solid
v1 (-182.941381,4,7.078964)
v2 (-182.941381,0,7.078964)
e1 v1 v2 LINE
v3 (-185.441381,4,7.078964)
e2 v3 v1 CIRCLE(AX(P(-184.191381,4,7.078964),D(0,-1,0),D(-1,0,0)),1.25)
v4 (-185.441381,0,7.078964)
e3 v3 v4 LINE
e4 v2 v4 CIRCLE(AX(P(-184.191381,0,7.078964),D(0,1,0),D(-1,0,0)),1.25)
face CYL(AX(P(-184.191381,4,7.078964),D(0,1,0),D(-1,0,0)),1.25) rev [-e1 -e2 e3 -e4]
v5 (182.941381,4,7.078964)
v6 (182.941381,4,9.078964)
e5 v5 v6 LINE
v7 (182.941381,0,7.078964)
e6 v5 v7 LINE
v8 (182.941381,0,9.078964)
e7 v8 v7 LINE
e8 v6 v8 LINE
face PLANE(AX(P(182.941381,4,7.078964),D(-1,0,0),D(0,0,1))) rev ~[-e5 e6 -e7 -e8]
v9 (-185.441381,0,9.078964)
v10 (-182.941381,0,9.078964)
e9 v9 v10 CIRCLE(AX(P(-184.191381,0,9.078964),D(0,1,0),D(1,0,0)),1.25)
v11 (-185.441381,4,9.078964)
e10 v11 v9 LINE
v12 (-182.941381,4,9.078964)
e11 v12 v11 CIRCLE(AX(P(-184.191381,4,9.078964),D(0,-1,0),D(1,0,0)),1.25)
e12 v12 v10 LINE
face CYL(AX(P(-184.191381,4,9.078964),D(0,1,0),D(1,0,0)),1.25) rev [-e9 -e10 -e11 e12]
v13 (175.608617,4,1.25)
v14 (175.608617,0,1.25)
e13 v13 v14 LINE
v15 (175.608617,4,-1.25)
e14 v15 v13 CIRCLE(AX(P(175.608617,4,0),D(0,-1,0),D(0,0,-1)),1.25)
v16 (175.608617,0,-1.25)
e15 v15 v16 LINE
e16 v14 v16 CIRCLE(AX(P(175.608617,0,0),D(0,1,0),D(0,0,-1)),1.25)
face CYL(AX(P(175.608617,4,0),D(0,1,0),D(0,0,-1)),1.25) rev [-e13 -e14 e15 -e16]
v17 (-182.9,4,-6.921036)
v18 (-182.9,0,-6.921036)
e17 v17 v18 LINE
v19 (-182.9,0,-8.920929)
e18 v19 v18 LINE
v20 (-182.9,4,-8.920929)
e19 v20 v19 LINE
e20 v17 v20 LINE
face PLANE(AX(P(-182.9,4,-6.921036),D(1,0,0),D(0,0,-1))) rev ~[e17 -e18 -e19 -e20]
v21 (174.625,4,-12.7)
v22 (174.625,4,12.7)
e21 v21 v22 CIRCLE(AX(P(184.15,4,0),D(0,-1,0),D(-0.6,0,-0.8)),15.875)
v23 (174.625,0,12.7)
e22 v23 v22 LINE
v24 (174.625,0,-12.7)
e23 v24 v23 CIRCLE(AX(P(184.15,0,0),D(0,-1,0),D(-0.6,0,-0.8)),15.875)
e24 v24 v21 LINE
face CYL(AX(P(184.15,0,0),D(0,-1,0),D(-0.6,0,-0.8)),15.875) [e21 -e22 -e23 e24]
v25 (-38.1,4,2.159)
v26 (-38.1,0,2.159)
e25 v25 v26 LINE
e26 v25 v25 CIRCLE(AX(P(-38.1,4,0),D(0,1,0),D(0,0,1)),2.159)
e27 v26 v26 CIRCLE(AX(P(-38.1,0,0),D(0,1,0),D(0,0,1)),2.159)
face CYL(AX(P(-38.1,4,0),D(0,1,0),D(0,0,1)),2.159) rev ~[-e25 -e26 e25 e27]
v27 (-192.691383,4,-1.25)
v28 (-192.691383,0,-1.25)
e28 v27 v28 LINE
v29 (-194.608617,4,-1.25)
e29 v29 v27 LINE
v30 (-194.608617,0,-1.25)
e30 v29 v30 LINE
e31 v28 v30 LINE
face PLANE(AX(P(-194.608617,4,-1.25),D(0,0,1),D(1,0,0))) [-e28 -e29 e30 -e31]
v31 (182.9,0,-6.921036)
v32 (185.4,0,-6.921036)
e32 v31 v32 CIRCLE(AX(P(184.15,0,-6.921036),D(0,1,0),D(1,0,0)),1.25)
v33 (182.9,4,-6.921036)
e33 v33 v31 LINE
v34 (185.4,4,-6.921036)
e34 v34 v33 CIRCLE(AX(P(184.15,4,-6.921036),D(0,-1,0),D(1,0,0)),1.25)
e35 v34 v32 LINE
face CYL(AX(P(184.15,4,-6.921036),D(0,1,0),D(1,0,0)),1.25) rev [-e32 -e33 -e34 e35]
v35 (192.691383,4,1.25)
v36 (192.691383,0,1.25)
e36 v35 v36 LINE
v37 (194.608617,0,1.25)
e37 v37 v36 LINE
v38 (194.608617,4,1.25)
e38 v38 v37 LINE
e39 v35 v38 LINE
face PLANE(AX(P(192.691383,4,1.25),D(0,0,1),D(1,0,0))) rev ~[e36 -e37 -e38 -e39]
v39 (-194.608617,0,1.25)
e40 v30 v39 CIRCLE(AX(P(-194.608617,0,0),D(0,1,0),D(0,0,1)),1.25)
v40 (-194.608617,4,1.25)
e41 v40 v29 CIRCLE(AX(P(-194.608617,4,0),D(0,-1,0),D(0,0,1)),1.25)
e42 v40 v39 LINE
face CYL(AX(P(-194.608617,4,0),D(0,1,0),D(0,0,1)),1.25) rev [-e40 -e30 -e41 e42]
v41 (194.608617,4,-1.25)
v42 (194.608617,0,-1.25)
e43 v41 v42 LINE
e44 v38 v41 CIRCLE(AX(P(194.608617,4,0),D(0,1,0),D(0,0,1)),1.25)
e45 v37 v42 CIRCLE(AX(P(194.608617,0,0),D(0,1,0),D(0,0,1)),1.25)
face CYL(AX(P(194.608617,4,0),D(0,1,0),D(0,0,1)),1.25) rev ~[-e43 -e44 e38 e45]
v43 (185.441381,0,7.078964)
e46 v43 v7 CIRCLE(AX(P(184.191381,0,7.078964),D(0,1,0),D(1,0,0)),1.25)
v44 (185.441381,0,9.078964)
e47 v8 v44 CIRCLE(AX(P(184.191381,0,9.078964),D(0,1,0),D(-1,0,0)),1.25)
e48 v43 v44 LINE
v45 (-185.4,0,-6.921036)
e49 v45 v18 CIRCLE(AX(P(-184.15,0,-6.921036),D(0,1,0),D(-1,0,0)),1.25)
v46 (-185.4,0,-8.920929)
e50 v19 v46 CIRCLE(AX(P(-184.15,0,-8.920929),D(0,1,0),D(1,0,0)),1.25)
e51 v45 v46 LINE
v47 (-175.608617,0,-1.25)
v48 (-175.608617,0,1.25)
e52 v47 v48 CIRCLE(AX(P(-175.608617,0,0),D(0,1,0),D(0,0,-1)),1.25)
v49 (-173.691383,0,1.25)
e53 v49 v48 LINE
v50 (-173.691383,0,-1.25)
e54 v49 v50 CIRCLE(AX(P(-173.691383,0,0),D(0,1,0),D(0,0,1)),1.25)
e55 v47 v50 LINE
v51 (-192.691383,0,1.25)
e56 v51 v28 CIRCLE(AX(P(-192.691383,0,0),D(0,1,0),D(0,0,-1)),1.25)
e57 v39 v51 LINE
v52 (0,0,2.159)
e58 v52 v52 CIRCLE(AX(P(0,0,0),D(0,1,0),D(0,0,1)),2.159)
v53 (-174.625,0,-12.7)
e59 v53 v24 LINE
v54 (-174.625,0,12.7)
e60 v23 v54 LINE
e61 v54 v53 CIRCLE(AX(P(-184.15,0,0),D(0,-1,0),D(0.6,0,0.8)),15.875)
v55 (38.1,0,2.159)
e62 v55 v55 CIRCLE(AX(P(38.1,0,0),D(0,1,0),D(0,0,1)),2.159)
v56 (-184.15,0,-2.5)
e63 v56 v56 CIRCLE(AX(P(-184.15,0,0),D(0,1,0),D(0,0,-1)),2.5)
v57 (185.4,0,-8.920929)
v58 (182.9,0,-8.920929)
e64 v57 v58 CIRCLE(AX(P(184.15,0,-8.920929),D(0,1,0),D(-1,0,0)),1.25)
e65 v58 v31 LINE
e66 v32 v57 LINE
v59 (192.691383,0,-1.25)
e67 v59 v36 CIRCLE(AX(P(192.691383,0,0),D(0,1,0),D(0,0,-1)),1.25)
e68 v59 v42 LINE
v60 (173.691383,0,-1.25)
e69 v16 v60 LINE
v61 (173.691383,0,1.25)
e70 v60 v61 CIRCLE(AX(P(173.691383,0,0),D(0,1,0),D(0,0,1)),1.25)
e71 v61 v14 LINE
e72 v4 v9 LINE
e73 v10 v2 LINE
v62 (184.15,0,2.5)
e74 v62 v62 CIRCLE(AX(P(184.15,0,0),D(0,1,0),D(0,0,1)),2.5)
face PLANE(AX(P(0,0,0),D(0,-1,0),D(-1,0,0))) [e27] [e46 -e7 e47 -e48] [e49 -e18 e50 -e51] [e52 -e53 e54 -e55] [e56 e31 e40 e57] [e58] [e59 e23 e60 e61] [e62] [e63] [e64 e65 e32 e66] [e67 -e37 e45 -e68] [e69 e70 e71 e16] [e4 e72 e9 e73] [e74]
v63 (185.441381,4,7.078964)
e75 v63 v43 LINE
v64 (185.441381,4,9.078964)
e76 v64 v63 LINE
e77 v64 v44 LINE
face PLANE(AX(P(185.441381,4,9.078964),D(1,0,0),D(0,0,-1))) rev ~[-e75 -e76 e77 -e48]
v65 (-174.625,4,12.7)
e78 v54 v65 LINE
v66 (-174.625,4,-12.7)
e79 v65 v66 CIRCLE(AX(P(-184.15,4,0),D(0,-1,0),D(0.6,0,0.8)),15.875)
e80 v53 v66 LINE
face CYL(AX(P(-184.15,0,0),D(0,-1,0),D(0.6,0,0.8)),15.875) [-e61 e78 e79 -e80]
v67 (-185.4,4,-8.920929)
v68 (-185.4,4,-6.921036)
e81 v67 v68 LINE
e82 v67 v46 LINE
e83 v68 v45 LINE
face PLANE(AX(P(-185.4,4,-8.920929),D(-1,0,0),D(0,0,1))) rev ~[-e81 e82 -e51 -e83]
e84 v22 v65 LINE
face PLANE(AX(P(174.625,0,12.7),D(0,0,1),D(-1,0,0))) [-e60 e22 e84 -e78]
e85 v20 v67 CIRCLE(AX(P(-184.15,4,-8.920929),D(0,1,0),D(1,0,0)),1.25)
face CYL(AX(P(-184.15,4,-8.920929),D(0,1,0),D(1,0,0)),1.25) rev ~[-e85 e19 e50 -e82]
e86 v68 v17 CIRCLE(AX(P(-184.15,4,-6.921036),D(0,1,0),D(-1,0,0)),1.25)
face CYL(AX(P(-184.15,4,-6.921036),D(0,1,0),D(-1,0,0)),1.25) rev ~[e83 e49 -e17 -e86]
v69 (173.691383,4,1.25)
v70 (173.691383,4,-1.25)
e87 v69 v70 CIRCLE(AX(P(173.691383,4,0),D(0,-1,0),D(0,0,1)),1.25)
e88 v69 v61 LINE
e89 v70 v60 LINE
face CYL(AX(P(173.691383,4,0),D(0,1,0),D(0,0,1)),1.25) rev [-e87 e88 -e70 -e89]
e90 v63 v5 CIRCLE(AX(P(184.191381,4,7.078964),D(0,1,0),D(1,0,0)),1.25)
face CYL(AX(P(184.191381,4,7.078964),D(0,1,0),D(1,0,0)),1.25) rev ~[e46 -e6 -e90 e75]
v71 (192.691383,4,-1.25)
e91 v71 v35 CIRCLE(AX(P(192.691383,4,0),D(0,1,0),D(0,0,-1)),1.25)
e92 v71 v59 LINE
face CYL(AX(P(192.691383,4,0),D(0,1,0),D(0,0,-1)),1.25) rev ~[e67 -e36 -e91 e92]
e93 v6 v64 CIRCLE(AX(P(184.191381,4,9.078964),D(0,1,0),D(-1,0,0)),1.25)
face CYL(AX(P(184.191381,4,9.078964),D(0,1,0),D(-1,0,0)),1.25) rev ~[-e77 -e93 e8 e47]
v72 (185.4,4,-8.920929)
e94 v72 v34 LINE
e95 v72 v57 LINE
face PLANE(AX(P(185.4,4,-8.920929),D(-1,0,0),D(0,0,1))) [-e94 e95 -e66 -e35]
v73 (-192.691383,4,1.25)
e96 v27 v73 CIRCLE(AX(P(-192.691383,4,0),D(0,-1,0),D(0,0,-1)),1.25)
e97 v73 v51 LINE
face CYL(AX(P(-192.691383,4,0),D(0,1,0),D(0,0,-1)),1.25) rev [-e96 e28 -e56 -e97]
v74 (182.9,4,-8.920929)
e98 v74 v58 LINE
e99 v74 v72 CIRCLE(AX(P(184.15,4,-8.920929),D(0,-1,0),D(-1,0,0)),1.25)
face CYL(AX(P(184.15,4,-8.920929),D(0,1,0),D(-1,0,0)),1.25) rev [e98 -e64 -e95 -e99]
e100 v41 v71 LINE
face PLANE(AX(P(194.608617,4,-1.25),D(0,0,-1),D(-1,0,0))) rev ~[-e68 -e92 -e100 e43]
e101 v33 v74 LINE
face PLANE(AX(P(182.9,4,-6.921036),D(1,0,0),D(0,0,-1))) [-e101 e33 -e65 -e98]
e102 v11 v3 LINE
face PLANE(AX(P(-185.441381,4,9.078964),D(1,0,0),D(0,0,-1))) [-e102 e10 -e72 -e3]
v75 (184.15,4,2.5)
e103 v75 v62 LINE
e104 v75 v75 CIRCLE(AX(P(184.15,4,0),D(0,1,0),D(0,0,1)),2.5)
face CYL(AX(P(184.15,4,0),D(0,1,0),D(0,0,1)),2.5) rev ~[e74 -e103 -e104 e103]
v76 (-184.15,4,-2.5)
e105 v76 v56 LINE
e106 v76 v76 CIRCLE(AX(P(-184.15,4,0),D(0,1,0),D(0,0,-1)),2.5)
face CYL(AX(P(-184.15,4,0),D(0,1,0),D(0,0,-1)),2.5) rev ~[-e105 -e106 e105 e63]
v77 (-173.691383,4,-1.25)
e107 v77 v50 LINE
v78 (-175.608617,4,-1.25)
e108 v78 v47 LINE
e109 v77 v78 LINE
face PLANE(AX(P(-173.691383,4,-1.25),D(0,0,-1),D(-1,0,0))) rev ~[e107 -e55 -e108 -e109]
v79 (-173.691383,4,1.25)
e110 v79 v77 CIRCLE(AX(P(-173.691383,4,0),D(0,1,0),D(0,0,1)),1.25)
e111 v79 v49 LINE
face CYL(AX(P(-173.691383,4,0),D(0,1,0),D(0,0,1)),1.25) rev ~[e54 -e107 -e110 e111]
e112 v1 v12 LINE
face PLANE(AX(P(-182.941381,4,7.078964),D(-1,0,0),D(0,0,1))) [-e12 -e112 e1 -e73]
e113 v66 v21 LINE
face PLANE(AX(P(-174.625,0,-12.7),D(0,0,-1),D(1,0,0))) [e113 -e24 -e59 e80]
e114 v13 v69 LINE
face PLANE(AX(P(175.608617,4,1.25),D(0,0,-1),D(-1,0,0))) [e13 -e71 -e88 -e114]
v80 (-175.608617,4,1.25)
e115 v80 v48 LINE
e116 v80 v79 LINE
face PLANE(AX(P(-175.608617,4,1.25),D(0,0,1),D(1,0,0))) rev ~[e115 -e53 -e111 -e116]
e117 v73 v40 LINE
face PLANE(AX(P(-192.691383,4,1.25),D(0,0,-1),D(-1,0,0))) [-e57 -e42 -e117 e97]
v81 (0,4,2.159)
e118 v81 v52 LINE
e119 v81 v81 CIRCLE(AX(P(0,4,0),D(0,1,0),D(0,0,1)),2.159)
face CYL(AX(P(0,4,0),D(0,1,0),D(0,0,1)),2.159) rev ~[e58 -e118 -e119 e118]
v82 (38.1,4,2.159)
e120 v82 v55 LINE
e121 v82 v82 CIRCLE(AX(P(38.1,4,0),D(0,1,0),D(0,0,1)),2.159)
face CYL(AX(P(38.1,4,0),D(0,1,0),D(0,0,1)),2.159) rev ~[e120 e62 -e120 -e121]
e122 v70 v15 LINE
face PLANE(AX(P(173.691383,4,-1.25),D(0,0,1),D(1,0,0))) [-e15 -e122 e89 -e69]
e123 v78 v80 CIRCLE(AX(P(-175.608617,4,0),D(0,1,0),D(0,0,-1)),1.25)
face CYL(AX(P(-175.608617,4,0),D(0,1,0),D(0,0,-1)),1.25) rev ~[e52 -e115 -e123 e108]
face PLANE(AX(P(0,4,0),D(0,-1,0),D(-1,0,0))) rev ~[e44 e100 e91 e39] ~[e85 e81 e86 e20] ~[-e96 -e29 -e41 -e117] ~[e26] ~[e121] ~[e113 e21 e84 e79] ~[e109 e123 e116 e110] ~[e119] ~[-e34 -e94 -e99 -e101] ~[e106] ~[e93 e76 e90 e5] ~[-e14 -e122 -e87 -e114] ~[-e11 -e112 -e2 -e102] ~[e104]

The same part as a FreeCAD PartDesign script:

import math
import FreeCAD as App
import Part
import Sketcher
from FreeCAD import Vector

doc = App.newDocument("Part")
body = doc.addObject("PartDesign::Body", "Body")

# Sketch on XZ plane
sketch1 = doc.addObject("Sketcher::SketchObject", "Sketch")
body.addObject(sketch1)
sketch1.AttachmentSupport = (doc.XZ_Plane, [""])
sketch1.MapMode = "FlatFace"
sketch1.addGeometry([
    Part.LineSegment(Vector(175, -13, 0), Vector(-175, -13, 0)),
    Part.ArcOfCircle(Part.Circle(Vector(-184, 0, 0), Vector(0, 0, 1), 16), math.radians(53), math.radians(307)),
    Part.LineSegment(Vector(-175, 13, 0), Vector(175, 13, 0)),
    Part.ArcOfCircle(Part.Circle(Vector(184, 0, 0), Vector(0, 0, 1), 16), math.radians(-127), math.radians(127)),
], False)
sketch1.addConstraint([
    Sketcher.Constraint("Coincident", 0, 2, 1, 2),
    Sketcher.Constraint("Coincident", 1, 1, 2, 1),
    Sketcher.Constraint("Coincident", 2, 2, 3, 2),
    Sketcher.Constraint("Coincident", 3, 1, 0, 1),
    Sketcher.Constraint("Horizontal", 0),
    Sketcher.Constraint("Horizontal", 2),
    Sketcher.Constraint("Equal", 1, 3),
    Sketcher.Constraint("Symmetric", 1, 3, 3, 3, -1, 1),
    Sketcher.Constraint("Symmetric", 0, 2, 1, 1, -1),
    Sketcher.Constraint("Radius", 1, 15.875),
    Sketcher.Constraint("DistanceX", 0, 2, 0, 1, 349.25),
    Sketcher.Constraint("DistanceY", 0, 2, -1, 1, 12.7),
])
pad1 = doc.addObject("PartDesign::Pad", "Pad")
body.addObject(pad1)
pad1.Profile = sketch1
pad1.Length = 4
pad1.Reversed = True

# Sketch on XZ plane
sketch2 = doc.addObject("Sketcher::SketchObject", "Sketch001")
body.addObject(sketch2)
sketch2.AttachmentSupport = (doc.XZ_Plane, [""])
sketch2.MapMode = "FlatFace"
sketch2.AttachmentOffset = App.Placement(Vector(0, 0, -4), App.Rotation())
sketch2.addGeometry([
    Part.Circle(Vector(184.2, 0, 0), Vector(0, 0, 1), 2.5),  # 0
    Part.Circle(Vector(-184.2, 0, 0), Vector(0, 0, 1), 2.5),  # 1
    Part.LineSegment(Vector(175.6, -1.2, 0), Vector(173.7, -1.2, 0)),  # 2
    Part.ArcOfCircle(Part.Circle(Vector(173.7, 0, 0), Vector(0, 0, 1), 1.2), math.radians(90), math.radians(270)),  # 3
    Part.LineSegment(Vector(173.7, 1.2, 0), Vector(175.6, 1.2, 0)),  # 4
    Part.ArcOfCircle(Part.Circle(Vector(175.6, 0, 0), Vector(0, 0, 1), 1.2), math.radians(-90), math.radians(90)),  # 5
    Part.LineSegment(Vector(194.6, -1.2, 0), Vector(192.7, -1.2, 0)),  # 6
    Part.ArcOfCircle(Part.Circle(Vector(192.7, 0, 0), Vector(0, 0, 1), 1.2), math.radians(90), math.radians(270)),  # 7
    Part.LineSegment(Vector(192.7, 1.2, 0), Vector(194.6, 1.2, 0)),  # 8
    Part.ArcOfCircle(Part.Circle(Vector(194.6, 0, 0), Vector(0, 0, 1), 1.2), math.radians(-90), math.radians(90)),  # 9
    Part.LineSegment(Vector(185.4, -6.9, 0), Vector(185.4, -8.9, 0)),  # 10
    Part.ArcOfCircle(Part.Circle(Vector(184.2, -8.9, 0), Vector(0, 0, 1), 1.2), math.radians(180), math.radians(360)),  # 11
    Part.LineSegment(Vector(182.9, -8.9, 0), Vector(182.9, -6.9, 0)),  # 12
    Part.ArcOfCircle(Part.Circle(Vector(184.2, -6.9, 0), Vector(0, 0, 1), 1.2), math.radians(0), math.radians(180)),  # 13
    Part.LineSegment(Vector(185.4, 9.1, 0), Vector(185.4, 7.1, 0)),  # 14
    Part.ArcOfCircle(Part.Circle(Vector(184.2, 7.1, 0), Vector(0, 0, 1), 1.2), math.radians(180), math.radians(360)),  # 15
    Part.LineSegment(Vector(182.9, 7.1, 0), Vector(182.9, 9.1, 0)),  # 16
    Part.ArcOfCircle(Part.Circle(Vector(184.2, 9.1, 0), Vector(0, 0, 1), 1.2), math.radians(0), math.radians(180)),  # 17
    Part.LineSegment(Vector(-185.4, 7.1, 0), Vector(-185.4, 9.1, 0)),  # 18
    Part.ArcOfCircle(Part.Circle(Vector(-184.2, 9.1, 0), Vector(0, 0, 1), 1.2), math.radians(0), math.radians(180)),  # 19
    Part.LineSegment(Vector(-182.9, 9.1, 0), Vector(-182.9, 7.1, 0)),  # 20
    Part.ArcOfCircle(Part.Circle(Vector(-184.2, 7.1, 0), Vector(0, 0, 1), 1.2), math.radians(180), math.radians(360)),  # 21
    Part.LineSegment(Vector(-185.4, -8.9, 0), Vector(-185.4, -6.9, 0)),  # 22
    Part.ArcOfCircle(Part.Circle(Vector(-184.2, -6.9, 0), Vector(0, 0, 1), 1.2), math.radians(0), math.radians(180)),  # 23
    Part.LineSegment(Vector(-182.9, -6.9, 0), Vector(-182.9, -8.9, 0)),  # 24
    Part.ArcOfCircle(Part.Circle(Vector(-184.2, -8.9, 0), Vector(0, 0, 1), 1.2), math.radians(180), math.radians(360)),  # 25
    Part.LineSegment(Vector(-192.7, -1.2, 0), Vector(-194.6, -1.2, 0)),  # 26
    Part.ArcOfCircle(Part.Circle(Vector(-194.6, 0, 0), Vector(0, 0, 1), 1.2), math.radians(90), math.radians(270)),  # 27
    Part.LineSegment(Vector(-194.6, 1.2, 0), Vector(-192.7, 1.2, 0)),  # 28
    Part.ArcOfCircle(Part.Circle(Vector(-192.7, 0, 0), Vector(0, 0, 1), 1.2), math.radians(-90), math.radians(90)),  # 29
    Part.LineSegment(Vector(-173.7, -1.2, 0), Vector(-175.6, -1.2, 0)),  # 30
    Part.ArcOfCircle(Part.Circle(Vector(-175.6, 0, 0), Vector(0, 0, 1), 1.2), math.radians(90), math.radians(270)),  # 31
    Part.LineSegment(Vector(-175.6, 1.2, 0), Vector(-173.7, 1.2, 0)),  # 32
    Part.ArcOfCircle(Part.Circle(Vector(-173.7, 0, 0), Vector(0, 0, 1), 1.2), math.radians(-90), math.radians(90)),  # 33
], False)
sketch2.addConstraint([
    Sketcher.Constraint("Tangent", 2, 2, 3, 2),
    Sketcher.Constraint("Tangent", 3, 1, 4, 1),
    Sketcher.Constraint("Tangent", 4, 2, 5, 2),
    Sketcher.Constraint("Tangent", 5, 1, 2, 1),
    Sketcher.Constraint("Tangent", 6, 2, 7, 2),
    Sketcher.Constraint("Tangent", 7, 1, 8, 1),
    Sketcher.Constraint("Tangent", 8, 2, 9, 2),
    Sketcher.Constraint("Tangent", 9, 1, 6, 1),
    Sketcher.Constraint("Tangent", 10, 2, 11, 2),
    Sketcher.Constraint("Tangent", 11, 1, 12, 1),
    Sketcher.Constraint("Tangent", 12, 2, 13, 2),
    Sketcher.Constraint("Tangent", 13, 1, 10, 1),
    Sketcher.Constraint("Tangent", 14, 2, 15, 2),
    Sketcher.Constraint("Tangent", 15, 1, 16, 1),
    Sketcher.Constraint("Tangent", 16, 2, 17, 2),
    Sketcher.Constraint("Tangent", 17, 1, 14, 1),
    Sketcher.Constraint("Tangent", 18, 2, 19, 2),
    Sketcher.Constraint("Tangent", 19, 1, 20, 1),
    Sketcher.Constraint("Tangent", 20, 2, 21, 2),
    Sketcher.Constraint("Tangent", 21, 1, 18, 1),
    Sketcher.Constraint("Tangent", 22, 2, 23, 2),
    Sketcher.Constraint("Tangent", 23, 1, 24, 1),
    Sketcher.Constraint("Tangent", 24, 2, 25, 2),
    Sketcher.Constraint("Tangent", 25, 1, 22, 1),
    Sketcher.Constraint("Tangent", 26, 2, 27, 2),
    Sketcher.Constraint("Tangent", 27, 1, 28, 1),
    Sketcher.Constraint("Tangent", 28, 2, 29, 2),
    Sketcher.Constraint("Tangent", 29, 1, 26, 1),
    Sketcher.Constraint("Tangent", 30, 2, 31, 2),
    Sketcher.Constraint("Tangent", 31, 1, 32, 1),
    Sketcher.Constraint("Tangent", 32, 2, 33, 2),
    Sketcher.Constraint("Tangent", 33, 1, 30, 1),
    Sketcher.Constraint("Horizontal", 2),
    Sketcher.Constraint("Horizontal", 4),
    Sketcher.Constraint("Horizontal", 6),
    Sketcher.Constraint("Horizontal", 8),
    Sketcher.Constraint("Vertical", 10),
    Sketcher.Constraint("Vertical", 12),
    Sketcher.Constraint("Vertical", 14),
    Sketcher.Constraint("Vertical", 16),
    Sketcher.Constraint("Vertical", 18),
    Sketcher.Constraint("Vertical", 20),
    Sketcher.Constraint("Vertical", 22),
    Sketcher.Constraint("Vertical", 24),
    Sketcher.Constraint("Horizontal", 26),
    Sketcher.Constraint("Horizontal", 28),
    Sketcher.Constraint("Horizontal", 30),
    Sketcher.Constraint("Horizontal", 32),
    Sketcher.Constraint("Equal", 0, 1),
    Sketcher.Constraint("Equal", 5, 7),
    Sketcher.Constraint("Equal", 9, 11),
    Sketcher.Constraint("Equal", 13, 15),
    Sketcher.Constraint("Equal", 17, 19),
    Sketcher.Constraint("Equal", 21, 23),
    Sketcher.Constraint("Equal", 25, 27),
    Sketcher.Constraint("Equal", 29, 31),
    Sketcher.Constraint("Symmetric", 0, 3, 1, 3, -1, 1),
    Sketcher.Constraint("Symmetric", 9, 3, 27, 3, -1, 1),
    Sketcher.Constraint("Symmetric", 5, 3, 31, 3, -1, 1),
    Sketcher.Constraint("Symmetric", 17, 3, 19, 3, -2),
    Sketcher.Constraint("Symmetric", 13, 3, 23, 3, -2),
    Sketcher.Constraint("Symmetric", 7, 3, 29, 3, -2),
    Sketcher.Constraint("Symmetric", 3, 3, 33, 3, -2),
    Sketcher.Constraint("PointOnObject", 0, 3, -1),
    Sketcher.Constraint("Horizontal", 15, 3, 21, 3),
    Sketcher.Constraint("Horizontal", 11, 3, 25, 3),
    Sketcher.Constraint("Vertical", 0, 3, 11, 3),
    Sketcher.Constraint("Equal", 4, 6),
    Sketcher.Constraint("Diameter", 0, 5.0),
    Sketcher.Constraint("DistanceY", 14, 2, 14, 1, 2.0),
    Sketcher.Constraint("Radius", 3, 1.25),
    Sketcher.Constraint("DistanceX", 3, 3, 7, 3, 19.0),
    Sketcher.Constraint("DistanceY", 23, 3, 21, 3, 14.0),
    Sketcher.Constraint("DistanceX", -1, 1, 10, 2, 185.4),
    Sketcher.Constraint("DistanceX", 15, 3, 7, 3, 8.500002),
    Sketcher.Constraint("DistanceX", 2, 2, 2, 1, 1.917233),
    Sketcher.Constraint("DistanceY", 10, 2, 10, 1, 1.999893),
    Sketcher.Constraint("DistanceY", 11, 3, -1, 1, 8.920929),
    Sketcher.Constraint("DistanceX", -1, 1, 15, 3, 184.191381),
])
pocket1 = doc.addObject("PartDesign::Pocket", "Pocket")
body.addObject(pocket1)
pocket1.Profile = sketch2
pocket1.Type = "ThroughAll"
pocket1.Reversed = True

# Sketch on XZ plane
sketch3 = doc.addObject("Sketcher::SketchObject", "Sketch002")
body.addObject(sketch3)
sketch3.AttachmentSupport = (doc.XZ_Plane, [""])
sketch3.MapMode = "FlatFace"
sketch3.AttachmentOffset = App.Placement(Vector(0, 0, -4), App.Rotation())
sketch3.addGeometry([
    Part.Circle(Vector(0, 0, 0), Vector(0, 0, 1), 2.2),
    Part.Circle(Vector(38.1, 0, 0), Vector(0, 0, 1), 2.2),
    Part.Circle(Vector(-38.1, 0, 0), Vector(0, 0, 1), 2.2),
], False)
sketch3.addConstraint([
    Sketcher.Constraint("Coincident", 0, 3, -1, 1),
    Sketcher.Constraint("Equal", 0, 1),
    Sketcher.Constraint("Equal", 1, 2),
    Sketcher.Constraint("Symmetric", 1, 3, 2, 3, -1, 1),
    Sketcher.Constraint("PointOnObject", 1, 3, -1),
    Sketcher.Constraint("Diameter", 0, 4.318),
    Sketcher.Constraint("DistanceX", -1, 1, 1, 3, 38.1),
])
pocket2 = doc.addObject("PartDesign::Pocket", "Pocket001")
body.addObject(pocket2)
pocket2.Profile = sketch3
pocket2.Type = "ThroughAll"
pocket2.Reversed = True

doc.recompute()
